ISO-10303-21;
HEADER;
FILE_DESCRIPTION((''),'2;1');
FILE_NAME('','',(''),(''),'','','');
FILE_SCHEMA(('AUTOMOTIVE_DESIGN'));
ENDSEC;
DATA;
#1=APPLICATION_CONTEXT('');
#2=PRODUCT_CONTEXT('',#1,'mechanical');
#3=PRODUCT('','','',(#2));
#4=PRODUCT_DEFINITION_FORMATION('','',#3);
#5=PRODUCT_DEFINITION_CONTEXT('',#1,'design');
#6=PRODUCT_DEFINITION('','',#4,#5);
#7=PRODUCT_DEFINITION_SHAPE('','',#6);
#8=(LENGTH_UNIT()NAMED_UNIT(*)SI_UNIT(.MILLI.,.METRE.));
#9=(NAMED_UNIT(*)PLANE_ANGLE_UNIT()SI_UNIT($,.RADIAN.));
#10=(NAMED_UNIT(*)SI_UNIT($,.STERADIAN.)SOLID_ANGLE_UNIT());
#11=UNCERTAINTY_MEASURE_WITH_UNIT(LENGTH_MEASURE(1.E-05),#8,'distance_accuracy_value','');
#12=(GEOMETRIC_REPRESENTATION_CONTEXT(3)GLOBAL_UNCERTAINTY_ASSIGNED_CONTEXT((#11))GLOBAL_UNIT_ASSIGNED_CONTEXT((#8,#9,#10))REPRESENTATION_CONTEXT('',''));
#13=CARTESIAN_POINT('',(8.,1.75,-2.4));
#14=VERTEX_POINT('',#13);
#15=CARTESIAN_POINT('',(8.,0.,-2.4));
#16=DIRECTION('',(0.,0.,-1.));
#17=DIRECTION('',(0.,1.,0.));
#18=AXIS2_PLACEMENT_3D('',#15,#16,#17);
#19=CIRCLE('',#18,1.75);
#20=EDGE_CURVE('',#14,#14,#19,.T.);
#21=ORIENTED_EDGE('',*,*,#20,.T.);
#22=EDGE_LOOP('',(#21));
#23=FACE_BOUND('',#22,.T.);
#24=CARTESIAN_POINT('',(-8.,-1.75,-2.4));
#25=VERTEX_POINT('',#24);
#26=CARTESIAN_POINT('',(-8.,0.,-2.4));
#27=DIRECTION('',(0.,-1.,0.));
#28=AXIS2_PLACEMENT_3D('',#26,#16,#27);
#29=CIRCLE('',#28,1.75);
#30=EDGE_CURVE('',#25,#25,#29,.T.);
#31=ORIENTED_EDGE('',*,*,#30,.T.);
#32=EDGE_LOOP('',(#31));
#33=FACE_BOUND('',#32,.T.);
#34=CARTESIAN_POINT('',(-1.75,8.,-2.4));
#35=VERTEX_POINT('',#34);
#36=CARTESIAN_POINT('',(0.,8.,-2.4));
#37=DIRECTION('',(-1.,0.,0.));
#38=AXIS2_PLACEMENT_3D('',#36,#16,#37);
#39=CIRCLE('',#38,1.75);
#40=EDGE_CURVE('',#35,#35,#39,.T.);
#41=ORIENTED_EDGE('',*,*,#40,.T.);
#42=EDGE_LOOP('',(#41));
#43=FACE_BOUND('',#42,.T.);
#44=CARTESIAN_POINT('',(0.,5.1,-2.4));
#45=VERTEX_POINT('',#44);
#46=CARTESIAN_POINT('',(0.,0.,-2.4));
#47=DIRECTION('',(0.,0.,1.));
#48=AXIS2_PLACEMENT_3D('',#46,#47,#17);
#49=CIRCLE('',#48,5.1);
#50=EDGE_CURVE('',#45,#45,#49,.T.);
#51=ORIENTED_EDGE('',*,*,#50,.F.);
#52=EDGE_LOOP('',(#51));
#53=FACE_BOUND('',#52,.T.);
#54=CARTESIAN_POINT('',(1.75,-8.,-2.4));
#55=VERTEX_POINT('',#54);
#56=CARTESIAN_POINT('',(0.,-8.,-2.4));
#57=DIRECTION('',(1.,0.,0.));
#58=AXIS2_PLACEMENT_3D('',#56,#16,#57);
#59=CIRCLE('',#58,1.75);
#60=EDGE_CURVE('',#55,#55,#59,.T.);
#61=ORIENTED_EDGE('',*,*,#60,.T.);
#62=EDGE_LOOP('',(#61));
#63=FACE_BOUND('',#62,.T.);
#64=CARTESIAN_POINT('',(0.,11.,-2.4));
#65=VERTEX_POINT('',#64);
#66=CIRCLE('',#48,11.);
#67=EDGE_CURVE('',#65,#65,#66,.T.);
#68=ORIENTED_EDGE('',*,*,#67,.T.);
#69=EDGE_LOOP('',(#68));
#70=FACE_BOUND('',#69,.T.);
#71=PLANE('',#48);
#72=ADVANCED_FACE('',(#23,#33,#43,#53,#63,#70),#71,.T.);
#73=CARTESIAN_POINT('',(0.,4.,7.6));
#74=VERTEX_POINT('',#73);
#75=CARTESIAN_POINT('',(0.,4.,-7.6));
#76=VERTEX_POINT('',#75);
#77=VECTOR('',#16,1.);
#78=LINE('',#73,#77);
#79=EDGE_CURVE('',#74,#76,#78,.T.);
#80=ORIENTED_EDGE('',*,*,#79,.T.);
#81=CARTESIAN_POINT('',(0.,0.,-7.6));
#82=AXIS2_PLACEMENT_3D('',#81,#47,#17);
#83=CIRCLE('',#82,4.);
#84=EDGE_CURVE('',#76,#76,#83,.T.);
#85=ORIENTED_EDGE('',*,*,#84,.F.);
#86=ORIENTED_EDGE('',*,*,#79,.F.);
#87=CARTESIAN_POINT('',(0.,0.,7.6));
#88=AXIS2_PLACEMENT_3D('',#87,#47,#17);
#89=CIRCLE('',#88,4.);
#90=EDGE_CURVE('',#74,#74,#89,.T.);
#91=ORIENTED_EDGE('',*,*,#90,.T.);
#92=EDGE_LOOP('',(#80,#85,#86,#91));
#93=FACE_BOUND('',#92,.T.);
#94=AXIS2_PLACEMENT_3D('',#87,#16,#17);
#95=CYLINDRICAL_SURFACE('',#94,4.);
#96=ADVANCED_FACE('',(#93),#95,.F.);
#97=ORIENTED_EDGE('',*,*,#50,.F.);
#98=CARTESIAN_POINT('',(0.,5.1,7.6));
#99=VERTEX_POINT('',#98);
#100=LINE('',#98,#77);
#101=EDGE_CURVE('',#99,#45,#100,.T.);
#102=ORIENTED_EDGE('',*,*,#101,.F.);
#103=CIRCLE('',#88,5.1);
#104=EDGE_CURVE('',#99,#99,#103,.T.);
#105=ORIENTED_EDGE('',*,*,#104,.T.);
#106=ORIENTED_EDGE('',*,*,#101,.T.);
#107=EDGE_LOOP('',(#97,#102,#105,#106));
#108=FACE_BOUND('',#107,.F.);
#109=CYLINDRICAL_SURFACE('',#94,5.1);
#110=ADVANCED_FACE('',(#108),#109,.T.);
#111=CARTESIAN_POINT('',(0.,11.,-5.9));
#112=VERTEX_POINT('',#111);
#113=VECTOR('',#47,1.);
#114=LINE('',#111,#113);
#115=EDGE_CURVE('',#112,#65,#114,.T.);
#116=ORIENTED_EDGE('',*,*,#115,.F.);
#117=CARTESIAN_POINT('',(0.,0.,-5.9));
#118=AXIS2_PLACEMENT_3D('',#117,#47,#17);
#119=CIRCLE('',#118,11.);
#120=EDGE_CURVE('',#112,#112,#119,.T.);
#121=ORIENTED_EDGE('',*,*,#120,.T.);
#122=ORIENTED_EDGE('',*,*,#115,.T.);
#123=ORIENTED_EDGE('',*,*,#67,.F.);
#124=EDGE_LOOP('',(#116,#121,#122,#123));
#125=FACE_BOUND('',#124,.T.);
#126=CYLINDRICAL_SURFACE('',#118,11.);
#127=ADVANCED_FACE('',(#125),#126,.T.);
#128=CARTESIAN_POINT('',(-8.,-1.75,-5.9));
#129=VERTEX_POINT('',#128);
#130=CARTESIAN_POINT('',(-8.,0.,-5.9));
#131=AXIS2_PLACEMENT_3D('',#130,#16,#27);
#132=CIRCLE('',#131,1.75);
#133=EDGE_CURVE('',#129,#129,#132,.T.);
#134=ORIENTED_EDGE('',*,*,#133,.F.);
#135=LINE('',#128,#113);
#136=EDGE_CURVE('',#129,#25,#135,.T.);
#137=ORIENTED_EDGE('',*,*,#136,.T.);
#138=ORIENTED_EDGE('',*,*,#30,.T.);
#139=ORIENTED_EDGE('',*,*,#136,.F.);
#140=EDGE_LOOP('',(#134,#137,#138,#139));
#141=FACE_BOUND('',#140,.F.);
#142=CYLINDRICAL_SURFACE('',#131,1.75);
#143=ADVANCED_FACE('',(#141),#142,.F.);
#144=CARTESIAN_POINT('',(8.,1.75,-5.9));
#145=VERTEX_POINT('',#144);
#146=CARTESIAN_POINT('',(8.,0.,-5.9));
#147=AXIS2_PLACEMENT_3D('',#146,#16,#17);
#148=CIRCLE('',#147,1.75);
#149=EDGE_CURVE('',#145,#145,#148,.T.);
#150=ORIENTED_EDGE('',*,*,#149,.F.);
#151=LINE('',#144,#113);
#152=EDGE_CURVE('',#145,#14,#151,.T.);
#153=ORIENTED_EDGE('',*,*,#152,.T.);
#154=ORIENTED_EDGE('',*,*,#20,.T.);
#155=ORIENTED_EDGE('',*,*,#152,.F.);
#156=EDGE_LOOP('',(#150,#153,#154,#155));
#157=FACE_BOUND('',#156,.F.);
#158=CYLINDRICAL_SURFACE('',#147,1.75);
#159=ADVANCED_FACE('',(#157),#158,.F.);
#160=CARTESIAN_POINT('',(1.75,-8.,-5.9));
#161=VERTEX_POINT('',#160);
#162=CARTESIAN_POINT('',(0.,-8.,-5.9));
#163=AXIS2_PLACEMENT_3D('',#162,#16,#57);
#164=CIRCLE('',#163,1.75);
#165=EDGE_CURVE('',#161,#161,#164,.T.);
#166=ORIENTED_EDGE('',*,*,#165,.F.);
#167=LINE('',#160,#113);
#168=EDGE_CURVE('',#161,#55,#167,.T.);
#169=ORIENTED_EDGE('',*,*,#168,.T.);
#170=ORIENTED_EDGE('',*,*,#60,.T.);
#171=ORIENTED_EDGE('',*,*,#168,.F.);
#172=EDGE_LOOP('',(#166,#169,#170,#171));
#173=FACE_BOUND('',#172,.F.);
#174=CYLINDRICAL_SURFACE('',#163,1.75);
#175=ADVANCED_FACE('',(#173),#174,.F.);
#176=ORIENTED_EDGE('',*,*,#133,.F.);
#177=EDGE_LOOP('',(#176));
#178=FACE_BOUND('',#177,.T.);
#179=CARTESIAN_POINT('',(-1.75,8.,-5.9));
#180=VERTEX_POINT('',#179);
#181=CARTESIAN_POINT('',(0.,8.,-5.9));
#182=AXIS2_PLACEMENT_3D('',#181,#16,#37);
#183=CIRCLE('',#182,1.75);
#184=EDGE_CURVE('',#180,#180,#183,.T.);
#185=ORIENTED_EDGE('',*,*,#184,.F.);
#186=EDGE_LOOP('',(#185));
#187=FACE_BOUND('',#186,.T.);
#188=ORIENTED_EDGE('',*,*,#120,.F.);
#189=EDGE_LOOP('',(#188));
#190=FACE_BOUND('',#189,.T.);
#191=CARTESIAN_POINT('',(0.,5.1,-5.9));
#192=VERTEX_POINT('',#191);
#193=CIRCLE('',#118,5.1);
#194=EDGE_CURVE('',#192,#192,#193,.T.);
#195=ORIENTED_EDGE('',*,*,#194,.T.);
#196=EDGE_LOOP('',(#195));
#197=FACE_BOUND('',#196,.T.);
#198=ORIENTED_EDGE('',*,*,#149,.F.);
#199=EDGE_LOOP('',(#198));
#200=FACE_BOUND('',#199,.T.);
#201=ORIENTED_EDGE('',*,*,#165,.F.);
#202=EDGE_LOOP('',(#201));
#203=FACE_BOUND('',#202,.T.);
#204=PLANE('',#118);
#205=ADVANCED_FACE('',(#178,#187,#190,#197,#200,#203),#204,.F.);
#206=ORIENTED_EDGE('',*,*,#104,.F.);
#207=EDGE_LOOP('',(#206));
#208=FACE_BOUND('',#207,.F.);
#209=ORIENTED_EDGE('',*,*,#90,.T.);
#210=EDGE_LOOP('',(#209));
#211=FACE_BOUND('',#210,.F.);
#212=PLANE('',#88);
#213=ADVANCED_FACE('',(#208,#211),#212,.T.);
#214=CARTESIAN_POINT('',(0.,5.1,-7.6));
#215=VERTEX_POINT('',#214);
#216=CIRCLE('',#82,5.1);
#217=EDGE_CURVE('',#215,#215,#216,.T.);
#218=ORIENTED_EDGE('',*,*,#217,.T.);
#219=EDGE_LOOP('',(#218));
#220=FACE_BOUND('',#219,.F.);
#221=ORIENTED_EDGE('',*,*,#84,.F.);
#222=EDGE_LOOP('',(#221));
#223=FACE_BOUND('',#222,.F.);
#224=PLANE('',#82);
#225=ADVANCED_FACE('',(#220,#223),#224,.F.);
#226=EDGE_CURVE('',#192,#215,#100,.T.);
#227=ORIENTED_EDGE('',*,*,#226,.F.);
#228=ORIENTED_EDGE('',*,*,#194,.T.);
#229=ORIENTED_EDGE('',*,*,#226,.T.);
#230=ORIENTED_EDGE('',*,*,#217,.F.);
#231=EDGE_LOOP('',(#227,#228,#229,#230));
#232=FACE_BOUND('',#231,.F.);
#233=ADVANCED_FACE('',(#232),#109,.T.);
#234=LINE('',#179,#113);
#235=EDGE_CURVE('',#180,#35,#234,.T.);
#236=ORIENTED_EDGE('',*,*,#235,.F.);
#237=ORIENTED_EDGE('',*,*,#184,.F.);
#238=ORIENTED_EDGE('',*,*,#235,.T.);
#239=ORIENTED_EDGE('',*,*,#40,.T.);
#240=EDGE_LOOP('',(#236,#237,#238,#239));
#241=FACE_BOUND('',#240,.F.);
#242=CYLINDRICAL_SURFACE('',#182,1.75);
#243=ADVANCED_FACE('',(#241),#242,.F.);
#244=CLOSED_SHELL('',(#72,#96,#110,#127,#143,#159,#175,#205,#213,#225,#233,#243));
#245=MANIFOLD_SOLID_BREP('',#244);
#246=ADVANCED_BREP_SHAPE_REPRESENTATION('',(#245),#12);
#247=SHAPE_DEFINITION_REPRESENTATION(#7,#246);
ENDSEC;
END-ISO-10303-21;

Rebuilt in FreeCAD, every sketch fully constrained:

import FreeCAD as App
import Part
import Sketcher


def add_polygon(sketch, points):
    """Adds a closed chain of lines whose ends are joined by coincident constraints."""
    first, n = sketch.GeometryCount, len(points)
    for a, b in zip(points, points[1:] + points[:1]):
        sketch.addGeometry(Part.LineSegment(App.Vector(*a, 0), App.Vector(*b, 0)), False)
    for i in range(n):
        sketch.addConstraint(Sketcher.Constraint("Coincident", first + i, 2, first + (i + 1) % n, 1))

doc = App.newDocument("Part")
params = doc.addObject("Spreadsheet::Sheet", "Params")
for row, (alias, value) in enumerate([
    ("sketch1_height", "10 mm"),
    ("sketch1_height2", "3.5 mm"),
    ("sketch1_height3", "15.2 mm"),
    ("revolution_angle", "360 deg"),
    ("sketch2_diameter", "3.5 mm"),
    ("pocket1_length", "4 mm"),
], start=1):
    params.set(f"A{row}", alias)
    params.set(f"B{row}", "=" + value)
    params.setAlias(f"B{row}", alias)

body = doc.addObject("PartDesign::Body", "Body")

# Sketch on YZ plane
sketch1 = body.newObject("Sketcher::SketchObject", "Sketch")
sketch1.AttachmentSupport = (doc.getObject("YZ_Plane"), [""])
sketch1.MapMode = "FlatFace"
add_polygon(sketch1, [(4, -7.6), (5.1, -7.6), (5.1, -5.9), (11, -5.9), (11, -2.4), (5.1, -2.4), (5.1, 7.6), (4, 7.6)])  # lines 0-7
sketch1.addConstraint([
    Sketcher.Constraint("Horizontal", 0),
    Sketcher.Constraint("Vertical", 1),
    Sketcher.Constraint("Horizontal", 2),
    Sketcher.Constraint("Vertical", 3),
    Sketcher.Constraint("Horizontal", 4),
    Sketcher.Constraint("Vertical", 5),
    Sketcher.Constraint("Horizontal", 6),
    Sketcher.Constraint("Vertical", 7),
    Sketcher.Constraint("Symmetric", 0, 2, 5, 2, -1),
    Sketcher.Constraint("DistanceY", 5, 1, 5, 2, 10.0),
    Sketcher.Constraint("DistanceY", 3, 1, 3, 2, 3.5),
    Sketcher.Constraint("DistanceY", 7, 2, 7, 1, 15.2),
    Sketcher.Constraint("DistanceX", -1, 1, 2, 2, 11.0),
    Sketcher.Constraint("DistanceX", -1, 1, 6, 2, 4.0),
    Sketcher.Constraint("DistanceX", -1, 1, 0, 2, 5.1),
])
sketch1.setExpression("Constraints[17]", "Params.sketch1_height")
sketch1.setExpression("Constraints[18]", "Params.sketch1_height2")
sketch1.setExpression("Constraints[19]", "Params.sketch1_height3")
revolution = body.newObject("PartDesign::Revolution", "Revolution")
revolution.Profile = sketch1
revolution.ReferenceAxis = (sketch1, ["V_Axis"])
revolution.setExpression("Angle", "Params.revolution_angle")

# Sketch on XY plane
sketch2 = body.newObject("Sketcher::SketchObject", "Sketch001")
sketch2.AttachmentSupport = (doc.getObject("XY_Plane"), [""])
sketch2.MapMode = "FlatFace"
sketch2.AttachmentOffset = App.Placement(App.Vector(0, 0, -5.9), App.Rotation())
sketch2.addGeometry(Part.Circle(App.Vector(0, 8, 0), App.Vector(0, 0, 1), 1.8), False)
sketch2.addConstraint([
    Sketcher.Constraint("PointOnObject", 0, 3, -2),
    Sketcher.Constraint("Diameter", 0, 3.5),
    Sketcher.Constraint("DistanceY", -1, 1, 0, 3, 8.0),
])
sketch2.setExpression("Constraints[1]", "Params.sketch2_diameter")
pocket1 = body.newObject("PartDesign::Pocket", "Pocket")
pocket1.Profile = sketch2
pocket1.setExpression("Length", "Params.pocket1_length")
pocket1.Reversed = True
doc.recompute()

polarpattern = body.newObject("PartDesign::PolarPattern", "PolarPattern")
polarpattern.Originals = [pocket1]
polarpattern.Axis = (doc.getObject("Z_Axis"), [""])
polarpattern.Angle = 360
polarpattern.Occurrences = 4
body.Tip = polarpattern

doc.recompute()
